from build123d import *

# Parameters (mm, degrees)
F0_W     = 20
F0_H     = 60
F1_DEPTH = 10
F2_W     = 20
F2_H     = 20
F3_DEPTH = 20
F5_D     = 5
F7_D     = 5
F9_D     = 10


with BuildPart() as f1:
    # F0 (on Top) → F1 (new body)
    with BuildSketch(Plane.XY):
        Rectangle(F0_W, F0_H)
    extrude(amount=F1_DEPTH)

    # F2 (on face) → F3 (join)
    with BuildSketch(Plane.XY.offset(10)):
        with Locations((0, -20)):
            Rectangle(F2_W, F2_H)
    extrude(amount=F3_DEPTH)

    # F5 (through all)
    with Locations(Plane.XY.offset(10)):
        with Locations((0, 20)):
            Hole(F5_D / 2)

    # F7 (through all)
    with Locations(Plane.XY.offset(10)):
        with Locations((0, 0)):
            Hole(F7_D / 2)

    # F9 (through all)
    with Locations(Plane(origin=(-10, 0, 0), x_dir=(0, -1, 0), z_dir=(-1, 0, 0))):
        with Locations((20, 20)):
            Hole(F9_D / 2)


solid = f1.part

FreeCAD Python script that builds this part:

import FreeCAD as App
import Part
import Sketcher
from FreeCAD import Vector
Q = App.Units.Quantity

doc = App.newDocument("Part")
body = doc.addObject("PartDesign::Body", "Body")

sketch1 = body.newObject("Sketcher::SketchObject", "Sketch")
sketch1.AttachmentSupport = (doc.getObject("XY_Plane"), [""])
sketch1.MapMode = "FlatFace"
sketch1.addGeometry(Part.LineSegment(Vector(-10, 30, 0), Vector(-10, -30, 0)), False)
sketch1.addGeometry(Part.LineSegment(Vector(-10, -30, 0), Vector(10, -30, 0)), False)
sketch1.addGeometry(Part.LineSegment(Vector(10, -30, 0), Vector(10, 30, 0)), False)
sketch1.addGeometry(Part.LineSegment(Vector(10, 30, 0), Vector(-10, 30, 0)), False)
sketch1.addConstraint(Sketcher.Constraint("Coincident", 0, 2, 1, 1))
sketch1.addConstraint(Sketcher.Constraint("Coincident", 1, 2, 2, 1))
sketch1.addConstraint(Sketcher.Constraint("Coincident", 2, 2, 3, 1))
sketch1.addConstraint(Sketcher.Constraint("Coincident", 3, 2, 0, 1))
sketch1.addConstraint(Sketcher.Constraint("Vertical", 0))
sketch1.addConstraint(Sketcher.Constraint("Horizontal", 1))
sketch1.addConstraint(Sketcher.Constraint("Vertical", 2))
sketch1.addConstraint(Sketcher.Constraint("Horizontal", 3))
sketch1.addConstraint(Sketcher.Constraint("Symmetric", 0, 2, 2, 2, -1, 1))
sketch1.addConstraint(Sketcher.Constraint("DistanceX", 1, 1, 1, 2, Q("20 mm")))
sketch1.addConstraint(Sketcher.Constraint("DistanceY", 0, 2, 0, 1, Q("60 mm")))
pad1 = body.newObject("PartDesign::Pad", "Pad")
pad1.Profile = sketch1
pad1.Length = 10

sketch2 = body.newObject("Sketcher::SketchObject", "Sketch001")
sketch2.AttachmentSupport = (doc.getObject("XY_Plane"), [""])
sketch2.MapMode = "FlatFace"
sketch2.AttachmentOffset = App.Placement(Vector(0, 0, 10), App.Rotation())
sketch2.addGeometry(Part.LineSegment(Vector(-10, -10, 0), Vector(-10, -30, 0)), False)
sketch2.addGeometry(Part.LineSegment(Vector(-10, -30, 0), Vector(10, -30, 0)), False)
sketch2.addGeometry(Part.LineSegment(Vector(10, -30, 0), Vector(10, -10, 0)), False)
sketch2.addGeometry(Part.LineSegment(Vector(10, -10, 0), Vector(-10, -10, 0)), False)
sketch2.addConstraint(Sketcher.Constraint("Coincident", 0, 2, 1, 1))
sketch2.addConstraint(Sketcher.Constraint("Coincident", 1, 2, 2, 1))
sketch2.addConstraint(Sketcher.Constraint("Coincident", 2, 2, 3, 1))
sketch2.addConstraint(Sketcher.Constraint("Coincident", 3, 2, 0, 1))
sketch2.addConstraint(Sketcher.Constraint("Vertical", 0))
sketch2.addConstraint(Sketcher.Constraint("Horizontal", 1))
sketch2.addConstraint(Sketcher.Constraint("Vertical", 2))
sketch2.addConstraint(Sketcher.Constraint("Horizontal", 3))
sketch2.addConstraint(Sketcher.Constraint("Equal", 3, 0))
sketch2.addConstraint(Sketcher.Constraint("DistanceX", 1, 1, 1, 2, Q("20 mm")))
sketch2.addConstraint(Sketcher.Constraint("DistanceX", 0, 2, -1, 1, Q("10 mm")))
sketch2.addConstraint(Sketcher.Constraint("DistanceY", 0, 2, -1, 1, Q("30 mm")))
pad2 = body.newObject("PartDesign::Pad", "Pad001")
pad2.Profile = sketch2
pad2.Length = 20

sketch3 = body.newObject("Sketcher::SketchObject", "Sketch002")
sketch3.AttachmentSupport = (doc.getObject("XY_Plane"), [""])
sketch3.MapMode = "FlatFace"
sketch3.AttachmentOffset = App.Placement(Vector(0, 0, 10), App.Rotation())
sketch3.addGeometry(Part.Circle(Vector(0, 20, 0), Vector(0, 0, 1), 2.5), False)
sketch3.addConstraint(Sketcher.Constraint("PointOnObject", 0, 3, -2))
sketch3.addConstraint(Sketcher.Constraint("Diameter", 0, Q("5 mm")))
sketch3.addConstraint(Sketcher.Constraint("DistanceY", -1, 1, 0, 3, Q("20 mm")))
doc.recompute()
hole = body.newObject("PartDesign::Hole", "Hole")
hole.Profile = sketch3
hole.ThreadType = "None"
hole.Diameter = 5
hole.DepthType = "ThroughAll"

sketch4 = body.newObject("Sketcher::SketchObject", "Sketch003")
sketch4.AttachmentSupport = (doc.getObject("XY_Plane"), [""])
sketch4.MapMode = "FlatFace"
sketch4.AttachmentOffset = App.Placement(Vector(0, 0, 10), App.Rotation())
sketch4.addGeometry(Part.Circle(Vector(0, 0, 0), Vector(0, 0, 1), 2.5), False)
sketch4.addConstraint(Sketcher.Constraint("Coincident", 0, 3, -1, 1))
sketch4.addConstraint(Sketcher.Constraint("Diameter", 0, Q("5 mm")))
doc.recompute()
hole2 = body.newObject("PartDesign::Hole", "Hole001")
hole2.Profile = sketch4
hole2.ThreadType = "None"
hole2.Diameter = 5
hole2.DepthType = "ThroughAll"

sketch5 = body.newObject("Sketcher::SketchObject", "Sketch004")
sketch5.AttachmentSupport = (doc.getObject("YZ_Plane"), [""])
sketch5.MapMode = "FlatFace"
sketch5.AttachmentOffset = App.Placement(Vector(0, 0, -10), App.Rotation())
sketch5.addGeometry(Part.Circle(Vector(-20, 20, 0), Vector(0, 0, 1), 5), False)
sketch5.addConstraint(Sketcher.Constraint("Diameter", 0, Q("10 mm")))
sketch5.addConstraint(Sketcher.Constraint("DistanceX", 0, 3, -1, 1, Q("20 mm")))
sketch5.addConstraint(Sketcher.Constraint("DistanceY", -1, 1, 0, 3, Q("20 mm")))
doc.recompute()
hole3 = body.newObject("PartDesign::Hole", "Hole002")
hole3.Profile = sketch5
hole3.ThreadType = "None"
hole3.Diameter = 10
hole3.DepthType = "ThroughAll"
hole3.Reversed = True

doc.recompute()
